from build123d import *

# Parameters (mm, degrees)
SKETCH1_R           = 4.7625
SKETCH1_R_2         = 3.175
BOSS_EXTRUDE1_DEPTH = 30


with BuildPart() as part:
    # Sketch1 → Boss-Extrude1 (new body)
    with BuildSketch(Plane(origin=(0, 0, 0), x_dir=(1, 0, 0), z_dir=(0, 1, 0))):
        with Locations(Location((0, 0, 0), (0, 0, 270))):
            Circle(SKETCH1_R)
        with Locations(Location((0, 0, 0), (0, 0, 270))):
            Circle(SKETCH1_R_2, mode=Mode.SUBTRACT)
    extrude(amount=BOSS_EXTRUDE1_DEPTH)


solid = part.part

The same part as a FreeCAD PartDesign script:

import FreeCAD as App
import Part
import Sketcher

V = App.Vector
Q = App.Units.Quantity

doc = App.newDocument("Part")
body = doc.addObject("PartDesign::Body", "Body")

# Sketch on XZ plane
sketch1 = body.newObject("Sketcher::SketchObject", "Sketch")
sketch1.AttachmentSupport = (doc.getObject("XZ_Plane"), [""])
sketch1.MapMode = "FlatFace"
sketch1.addGeometry([
    Part.Circle(V(0, 0, 0), V(0, 0, 1), 4.8),
    Part.Circle(V(0, 0, 0), V(0, 0, 1), 3.2),
], False)
sketch1.addConstraint([
    Sketcher.Constraint("Coincident", 0, 3, -1, 1),
    Sketcher.Constraint("Coincident", 1, 3, -1, 1),
    Sketcher.Constraint("Diameter", 1, Q("0.25 in")),
    Sketcher.Constraint("Diameter", 0, Q("0.375 in")),
])
pad1 = body.newObject("PartDesign::Pad", "Pad")
pad1.Profile = sketch1
pad1.Length = 30
pad1.Reversed = True

doc.recompute()
